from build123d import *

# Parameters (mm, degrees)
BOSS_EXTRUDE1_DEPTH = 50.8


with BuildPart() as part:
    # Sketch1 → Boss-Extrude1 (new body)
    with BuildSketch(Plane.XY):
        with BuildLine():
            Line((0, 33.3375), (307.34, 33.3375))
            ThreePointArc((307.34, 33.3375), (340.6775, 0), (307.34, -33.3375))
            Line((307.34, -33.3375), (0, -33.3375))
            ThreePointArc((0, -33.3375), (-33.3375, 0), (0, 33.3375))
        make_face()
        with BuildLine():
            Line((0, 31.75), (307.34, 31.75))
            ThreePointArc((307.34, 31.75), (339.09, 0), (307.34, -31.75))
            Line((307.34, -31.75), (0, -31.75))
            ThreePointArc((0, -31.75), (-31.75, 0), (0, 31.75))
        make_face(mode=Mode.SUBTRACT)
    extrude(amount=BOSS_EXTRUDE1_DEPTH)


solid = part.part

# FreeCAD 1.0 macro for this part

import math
import FreeCAD as App
import Part
import Sketcher
Q = App.Units.Quantity

doc = App.newDocument("Part")
params = doc.addObject("Spreadsheet::Sheet", "Params")
for row, (alias, value) in enumerate([
    ("sketch1_radius", "1.25 in"),
    ("sketch1_width", "12.1 in"),
    ("sketch1_radius2", "1.3125 in"),
    ("pad1_length", "2 in"),
], start=1):
    params.set(f"A{row}", alias)
    params.set(f"B{row}", "=" + value)
    params.setAlias(f"B{row}", alias)

body = doc.addObject("PartDesign::Body", "Body")

# Sketch on XY plane
sketch1 = doc.addObject("Sketcher::SketchObject", "Sketch")
body.addObject(sketch1)
sketch1.AttachmentSupport = (doc.XY_Plane, [""])
sketch1.MapMode = "FlatFace"
sketch1.addGeometry([
    Part.LineSegment(App.Vector(307, 33, 0), App.Vector(0, 33, 0)),  # 0
    Part.ArcOfCircle(Part.Circle(App.Vector(0, 0, 0), App.Vector(0, 0, 1), 33), math.radians(90), math.radians(270)),  # 1
    Part.LineSegment(App.Vector(0, -33, 0), App.Vector(307, -33, 0)),  # 2
    Part.ArcOfCircle(Part.Circle(App.Vector(307, 0, 0), App.Vector(0, 0, 1), 33), math.radians(-90), math.radians(90)),  # 3
    Part.LineSegment(App.Vector(0, 32, 0), App.Vector(307, 32, 0)),  # 4
    Part.ArcOfCircle(Part.Circle(App.Vector(307, 0, 0), App.Vector(0, 0, 1), 32), math.radians(-90), math.radians(90)),  # 5
    Part.LineSegment(App.Vector(307, -32, 0), App.Vector(0, -32, 0)),  # 6
    Part.ArcOfCircle(Part.Circle(App.Vector(0, 0, 0), App.Vector(0, 0, 1), 32), math.radians(90), math.radians(270)),  # 7
], False)
sketch1.addConstraint([
    Sketcher.Constraint("Tangent", 0, 2, 1, 1),
    Sketcher.Constraint("Tangent", 1, 2, 2, 1),
    Sketcher.Constraint("Tangent", 2, 2, 3, 1),
    Sketcher.Constraint("Tangent", 3, 2, 0, 1),
    Sketcher.Constraint("Tangent", 4, 2, 5, 2),
    Sketcher.Constraint("Tangent", 5, 1, 6, 1),
    Sketcher.Constraint("Tangent", 6, 2, 7, 2),
    Sketcher.Constraint("Tangent", 7, 1, 4, 1),
    Sketcher.Constraint("Horizontal", 0),
    Sketcher.Constraint("Horizontal", 2),
    Sketcher.Constraint("Horizontal", 4),
    Sketcher.Constraint("Horizontal", 6),
    Sketcher.Constraint("Coincident", 1, 3, -1, 1),
    Sketcher.Constraint("Coincident", 7, 3, -1, 1),
    Sketcher.Constraint("Vertical", 5, 3, 2, 2),
    Sketcher.Constraint("Radius", 5, Q("1.25 in")),
    Sketcher.Constraint("DistanceX", 0, 2, 0, 1, Q("12.1 in")),
    Sketcher.Constraint("Radius", 1, Q("1.3125 in")),
])
sketch1.setExpression("Constraints[15]", "Params.sketch1_radius")
sketch1.setExpression("Constraints[16]", "Params.sketch1_width")
sketch1.setExpression("Constraints[17]", "Params.sketch1_radius2")
pad1 = doc.addObject("PartDesign::Pad", "Pad")
body.addObject(pad1)
pad1.Profile = sketch1
pad1.setExpression("Length", "Params.pad1_length")

doc.recompute()
